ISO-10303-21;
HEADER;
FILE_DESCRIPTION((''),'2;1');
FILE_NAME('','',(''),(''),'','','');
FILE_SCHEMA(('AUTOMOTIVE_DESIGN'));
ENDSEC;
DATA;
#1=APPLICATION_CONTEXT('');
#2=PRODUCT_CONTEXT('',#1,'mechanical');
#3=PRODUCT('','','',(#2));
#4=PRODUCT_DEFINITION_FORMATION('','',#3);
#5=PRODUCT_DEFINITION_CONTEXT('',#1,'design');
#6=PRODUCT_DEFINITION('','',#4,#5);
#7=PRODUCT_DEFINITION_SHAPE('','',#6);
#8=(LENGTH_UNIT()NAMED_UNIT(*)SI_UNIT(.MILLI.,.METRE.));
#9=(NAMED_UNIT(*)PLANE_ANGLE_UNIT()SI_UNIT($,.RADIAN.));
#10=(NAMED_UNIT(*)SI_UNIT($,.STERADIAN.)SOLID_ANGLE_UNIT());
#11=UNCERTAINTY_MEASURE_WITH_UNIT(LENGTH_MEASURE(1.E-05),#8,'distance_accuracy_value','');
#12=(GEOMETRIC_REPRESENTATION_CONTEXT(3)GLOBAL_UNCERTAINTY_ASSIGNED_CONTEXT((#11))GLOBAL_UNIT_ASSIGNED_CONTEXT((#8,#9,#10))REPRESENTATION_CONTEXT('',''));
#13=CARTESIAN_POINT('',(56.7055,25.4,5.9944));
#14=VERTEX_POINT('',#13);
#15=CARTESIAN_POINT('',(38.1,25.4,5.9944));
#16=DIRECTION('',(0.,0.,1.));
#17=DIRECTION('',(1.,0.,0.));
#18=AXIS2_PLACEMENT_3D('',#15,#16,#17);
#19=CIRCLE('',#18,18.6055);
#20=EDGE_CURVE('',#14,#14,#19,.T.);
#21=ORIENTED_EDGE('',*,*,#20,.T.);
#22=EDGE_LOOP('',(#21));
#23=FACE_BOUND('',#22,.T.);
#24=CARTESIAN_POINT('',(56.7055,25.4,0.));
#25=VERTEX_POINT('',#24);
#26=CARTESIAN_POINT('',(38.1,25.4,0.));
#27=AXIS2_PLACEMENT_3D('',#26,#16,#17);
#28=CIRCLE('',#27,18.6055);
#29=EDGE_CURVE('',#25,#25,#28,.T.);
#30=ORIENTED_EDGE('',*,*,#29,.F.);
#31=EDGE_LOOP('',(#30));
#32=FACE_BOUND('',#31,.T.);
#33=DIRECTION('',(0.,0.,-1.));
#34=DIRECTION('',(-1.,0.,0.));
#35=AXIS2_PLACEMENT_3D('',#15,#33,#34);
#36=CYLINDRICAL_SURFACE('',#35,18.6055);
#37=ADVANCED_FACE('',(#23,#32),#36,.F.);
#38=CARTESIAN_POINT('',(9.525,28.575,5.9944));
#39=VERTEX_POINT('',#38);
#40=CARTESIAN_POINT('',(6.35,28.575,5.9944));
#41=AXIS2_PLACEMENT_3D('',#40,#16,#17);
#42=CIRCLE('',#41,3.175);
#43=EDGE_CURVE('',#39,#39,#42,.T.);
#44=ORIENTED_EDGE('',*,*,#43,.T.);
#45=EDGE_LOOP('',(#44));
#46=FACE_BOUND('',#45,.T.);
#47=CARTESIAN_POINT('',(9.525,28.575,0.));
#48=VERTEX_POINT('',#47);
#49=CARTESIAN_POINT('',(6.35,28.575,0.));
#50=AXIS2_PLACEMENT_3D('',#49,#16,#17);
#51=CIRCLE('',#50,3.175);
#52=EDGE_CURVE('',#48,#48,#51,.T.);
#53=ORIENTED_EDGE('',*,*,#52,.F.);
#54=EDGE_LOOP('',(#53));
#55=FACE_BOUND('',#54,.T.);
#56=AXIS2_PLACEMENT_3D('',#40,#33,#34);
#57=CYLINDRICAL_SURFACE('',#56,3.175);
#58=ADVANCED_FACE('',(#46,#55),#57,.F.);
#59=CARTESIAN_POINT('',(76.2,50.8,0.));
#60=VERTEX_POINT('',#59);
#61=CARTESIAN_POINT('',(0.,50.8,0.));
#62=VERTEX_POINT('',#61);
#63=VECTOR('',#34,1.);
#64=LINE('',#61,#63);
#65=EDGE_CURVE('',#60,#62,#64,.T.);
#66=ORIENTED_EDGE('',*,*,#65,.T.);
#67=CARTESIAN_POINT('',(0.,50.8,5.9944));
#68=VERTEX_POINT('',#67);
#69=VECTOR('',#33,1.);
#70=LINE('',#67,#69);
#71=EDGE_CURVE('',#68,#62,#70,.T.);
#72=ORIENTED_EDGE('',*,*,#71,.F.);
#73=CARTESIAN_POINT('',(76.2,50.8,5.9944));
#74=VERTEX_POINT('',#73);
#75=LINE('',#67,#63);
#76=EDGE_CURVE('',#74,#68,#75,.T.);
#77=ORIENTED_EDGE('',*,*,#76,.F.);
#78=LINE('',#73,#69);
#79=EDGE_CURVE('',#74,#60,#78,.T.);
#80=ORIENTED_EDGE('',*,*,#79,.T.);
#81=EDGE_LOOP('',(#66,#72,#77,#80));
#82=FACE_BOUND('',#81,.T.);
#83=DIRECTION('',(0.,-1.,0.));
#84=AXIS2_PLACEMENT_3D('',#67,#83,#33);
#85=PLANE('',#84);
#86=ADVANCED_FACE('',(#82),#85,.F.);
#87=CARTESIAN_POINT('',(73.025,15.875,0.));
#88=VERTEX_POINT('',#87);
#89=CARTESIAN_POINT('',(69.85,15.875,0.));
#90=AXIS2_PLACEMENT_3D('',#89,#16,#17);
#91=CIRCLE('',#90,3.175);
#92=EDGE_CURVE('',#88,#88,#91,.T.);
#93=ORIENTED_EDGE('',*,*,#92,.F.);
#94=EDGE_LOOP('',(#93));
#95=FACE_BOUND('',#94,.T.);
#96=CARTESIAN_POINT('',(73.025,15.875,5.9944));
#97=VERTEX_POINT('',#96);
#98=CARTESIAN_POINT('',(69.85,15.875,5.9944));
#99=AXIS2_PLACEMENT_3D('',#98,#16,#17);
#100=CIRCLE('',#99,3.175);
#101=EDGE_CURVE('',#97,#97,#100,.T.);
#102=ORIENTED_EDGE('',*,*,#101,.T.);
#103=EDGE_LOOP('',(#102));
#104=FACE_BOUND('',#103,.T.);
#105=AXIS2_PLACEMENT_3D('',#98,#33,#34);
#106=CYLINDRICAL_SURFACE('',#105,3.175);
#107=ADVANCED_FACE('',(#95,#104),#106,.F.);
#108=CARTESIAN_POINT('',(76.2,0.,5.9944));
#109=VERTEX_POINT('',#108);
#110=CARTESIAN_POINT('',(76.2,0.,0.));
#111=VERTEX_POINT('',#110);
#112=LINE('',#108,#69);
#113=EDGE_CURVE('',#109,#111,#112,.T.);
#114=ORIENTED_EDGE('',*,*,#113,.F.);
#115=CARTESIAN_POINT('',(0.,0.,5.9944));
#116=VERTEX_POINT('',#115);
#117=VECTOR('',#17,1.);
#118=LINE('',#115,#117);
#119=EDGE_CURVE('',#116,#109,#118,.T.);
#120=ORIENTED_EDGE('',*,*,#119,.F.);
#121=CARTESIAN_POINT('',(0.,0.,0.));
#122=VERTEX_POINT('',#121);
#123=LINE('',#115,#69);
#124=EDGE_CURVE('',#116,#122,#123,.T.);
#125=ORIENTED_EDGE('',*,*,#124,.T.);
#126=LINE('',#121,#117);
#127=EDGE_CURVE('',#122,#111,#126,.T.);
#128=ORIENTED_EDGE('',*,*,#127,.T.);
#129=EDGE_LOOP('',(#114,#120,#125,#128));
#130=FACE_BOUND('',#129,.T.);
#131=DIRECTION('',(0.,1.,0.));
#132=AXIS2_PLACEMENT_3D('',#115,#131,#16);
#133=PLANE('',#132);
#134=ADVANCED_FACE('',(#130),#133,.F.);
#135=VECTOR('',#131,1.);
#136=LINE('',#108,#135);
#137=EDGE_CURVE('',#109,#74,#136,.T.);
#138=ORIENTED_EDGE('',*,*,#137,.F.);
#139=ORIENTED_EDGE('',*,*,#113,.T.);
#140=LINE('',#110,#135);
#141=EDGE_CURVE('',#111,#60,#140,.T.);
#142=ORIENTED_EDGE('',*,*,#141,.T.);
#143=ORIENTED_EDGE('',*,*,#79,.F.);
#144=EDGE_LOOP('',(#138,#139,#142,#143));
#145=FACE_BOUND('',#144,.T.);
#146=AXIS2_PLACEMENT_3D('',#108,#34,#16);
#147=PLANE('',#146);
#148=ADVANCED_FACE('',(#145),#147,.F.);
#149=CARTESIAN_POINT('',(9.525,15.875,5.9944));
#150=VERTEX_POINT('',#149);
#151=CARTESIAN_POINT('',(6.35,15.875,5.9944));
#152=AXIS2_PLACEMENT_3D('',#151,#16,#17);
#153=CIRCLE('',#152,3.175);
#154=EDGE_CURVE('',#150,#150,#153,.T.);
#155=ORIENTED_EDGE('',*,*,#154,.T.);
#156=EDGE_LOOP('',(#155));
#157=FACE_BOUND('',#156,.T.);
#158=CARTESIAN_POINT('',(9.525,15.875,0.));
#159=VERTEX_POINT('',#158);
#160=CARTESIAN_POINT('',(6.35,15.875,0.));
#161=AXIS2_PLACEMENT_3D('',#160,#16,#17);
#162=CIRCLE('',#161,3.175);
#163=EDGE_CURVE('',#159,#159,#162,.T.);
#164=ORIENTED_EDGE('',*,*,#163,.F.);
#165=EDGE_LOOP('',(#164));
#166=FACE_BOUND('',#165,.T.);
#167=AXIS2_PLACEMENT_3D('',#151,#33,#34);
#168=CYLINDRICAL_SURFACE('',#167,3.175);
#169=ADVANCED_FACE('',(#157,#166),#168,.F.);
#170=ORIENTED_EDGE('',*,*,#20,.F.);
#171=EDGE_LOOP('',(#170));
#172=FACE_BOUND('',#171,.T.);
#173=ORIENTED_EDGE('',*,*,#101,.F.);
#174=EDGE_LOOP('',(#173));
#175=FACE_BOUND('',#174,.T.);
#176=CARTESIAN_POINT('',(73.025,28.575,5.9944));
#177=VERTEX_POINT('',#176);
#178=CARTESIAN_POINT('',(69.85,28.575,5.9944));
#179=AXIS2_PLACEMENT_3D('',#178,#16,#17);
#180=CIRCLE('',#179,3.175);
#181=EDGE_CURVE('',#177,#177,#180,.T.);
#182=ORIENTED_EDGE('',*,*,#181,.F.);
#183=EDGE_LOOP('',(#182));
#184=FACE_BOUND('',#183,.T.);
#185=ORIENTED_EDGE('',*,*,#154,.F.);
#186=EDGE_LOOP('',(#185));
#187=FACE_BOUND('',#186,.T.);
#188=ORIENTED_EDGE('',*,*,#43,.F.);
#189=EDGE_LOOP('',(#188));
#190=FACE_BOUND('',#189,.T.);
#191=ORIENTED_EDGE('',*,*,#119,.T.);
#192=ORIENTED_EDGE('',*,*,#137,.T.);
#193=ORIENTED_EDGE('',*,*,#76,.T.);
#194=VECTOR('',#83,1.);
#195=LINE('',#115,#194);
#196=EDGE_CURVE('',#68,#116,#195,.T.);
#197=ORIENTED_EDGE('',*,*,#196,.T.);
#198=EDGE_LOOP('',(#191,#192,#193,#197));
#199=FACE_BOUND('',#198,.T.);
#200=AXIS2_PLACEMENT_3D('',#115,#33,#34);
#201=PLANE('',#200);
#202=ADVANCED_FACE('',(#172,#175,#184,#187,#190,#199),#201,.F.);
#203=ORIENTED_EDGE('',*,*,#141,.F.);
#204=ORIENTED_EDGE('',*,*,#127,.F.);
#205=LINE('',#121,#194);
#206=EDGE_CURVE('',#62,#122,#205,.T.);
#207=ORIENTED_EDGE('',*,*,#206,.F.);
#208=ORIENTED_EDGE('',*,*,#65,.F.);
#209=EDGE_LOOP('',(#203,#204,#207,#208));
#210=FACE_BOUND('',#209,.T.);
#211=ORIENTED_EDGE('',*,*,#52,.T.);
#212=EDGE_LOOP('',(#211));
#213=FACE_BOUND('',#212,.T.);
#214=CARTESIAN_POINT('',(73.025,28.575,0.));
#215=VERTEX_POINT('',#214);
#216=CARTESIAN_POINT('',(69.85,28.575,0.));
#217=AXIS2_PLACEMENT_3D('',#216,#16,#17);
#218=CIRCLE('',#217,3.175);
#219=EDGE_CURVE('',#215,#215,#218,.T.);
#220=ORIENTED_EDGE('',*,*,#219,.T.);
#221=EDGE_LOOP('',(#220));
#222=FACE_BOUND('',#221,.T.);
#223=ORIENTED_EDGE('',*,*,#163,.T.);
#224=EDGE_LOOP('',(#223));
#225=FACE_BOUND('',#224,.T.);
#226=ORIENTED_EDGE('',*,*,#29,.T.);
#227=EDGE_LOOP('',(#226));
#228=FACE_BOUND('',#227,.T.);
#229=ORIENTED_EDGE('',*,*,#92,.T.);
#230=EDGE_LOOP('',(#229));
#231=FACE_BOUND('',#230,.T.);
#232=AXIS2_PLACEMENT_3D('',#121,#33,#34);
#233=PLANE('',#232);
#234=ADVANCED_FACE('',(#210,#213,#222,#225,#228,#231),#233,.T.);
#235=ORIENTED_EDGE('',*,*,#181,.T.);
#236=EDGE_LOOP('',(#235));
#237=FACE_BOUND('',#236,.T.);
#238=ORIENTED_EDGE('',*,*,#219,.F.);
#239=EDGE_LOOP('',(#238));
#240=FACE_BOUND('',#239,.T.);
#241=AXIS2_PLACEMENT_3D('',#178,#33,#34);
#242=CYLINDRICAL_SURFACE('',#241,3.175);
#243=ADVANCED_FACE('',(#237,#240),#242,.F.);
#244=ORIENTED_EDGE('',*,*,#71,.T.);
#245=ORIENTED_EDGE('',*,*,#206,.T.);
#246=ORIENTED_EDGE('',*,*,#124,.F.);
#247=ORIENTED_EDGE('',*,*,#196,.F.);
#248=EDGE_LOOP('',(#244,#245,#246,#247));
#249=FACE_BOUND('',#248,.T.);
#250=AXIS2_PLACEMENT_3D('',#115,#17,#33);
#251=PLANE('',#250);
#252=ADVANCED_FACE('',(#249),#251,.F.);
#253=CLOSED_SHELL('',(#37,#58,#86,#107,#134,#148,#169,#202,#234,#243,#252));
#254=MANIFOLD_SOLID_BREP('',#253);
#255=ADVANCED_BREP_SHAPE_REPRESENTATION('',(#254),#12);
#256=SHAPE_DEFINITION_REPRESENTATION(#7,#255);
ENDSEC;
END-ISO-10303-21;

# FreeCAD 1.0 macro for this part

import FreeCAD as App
import Part
import Sketcher

V = App.Vector
Q = App.Units.Quantity


def add_polygon(sketch, points):
    """Adds a closed chain of lines whose ends are joined by coincident constraints."""
    first, n = sketch.GeometryCount, len(points)
    for a, b in zip(points, points[1:] + points[:1]):
        sketch.addGeometry(Part.LineSegment(App.Vector(*a, 0), App.Vector(*b, 0)), False)
    for i in range(n):
        sketch.addConstraint(Sketcher.Constraint("Coincident", first + i, 2, first + (i + 1) % n, 1))

doc = App.newDocument("Part")
body = doc.addObject("PartDesign::Body", "Body")

sketch1 = body.newObject("Sketcher::SketchObject", "Sketch")
sketch1.AttachmentSupport = (doc.getObject("XY_Plane"), [""])
sketch1.MapMode = "FlatFace"
add_polygon(sketch1, [(0, 50.8), (0, 0), (76.2, 0), (76.2, 50.8)])
sketch1.addGeometry(Part.Circle(V(6.3, 15.9, 0), V(0, 0, 1), 3.2), False)
sketch1.addGeometry(Part.Circle(V(69.8, 15.9, 0), V(0, 0, 1), 3.2), False)
sketch1.addGeometry(Part.Circle(V(38.1, 25.4, 0), V(0, 0, 1), 18.6), False)
sketch1.addGeometry(Part.Circle(V(6.3, 28.6, 0), V(0, 0, 1), 3.2), False)
sketch1.addGeometry(Part.Circle(V(69.8, 28.6, 0), V(0, 0, 1), 3.2), False)
sketch1.addConstraint(Sketcher.Constraint("Vertical", 0))
sketch1.addConstraint(Sketcher.Constraint("Horizontal", 1))
sketch1.addConstraint(Sketcher.Constraint("Vertical", 2))
sketch1.addConstraint(Sketcher.Constraint("Horizontal", 3))
sketch1.addConstraint(Sketcher.Constraint("Coincident", 0, 2, -1, 1))
sketch1.addConstraint(Sketcher.Constraint("Equal", 4, 5))
sketch1.addConstraint(Sketcher.Constraint("Equal", 5, 7))
sketch1.addConstraint(Sketcher.Constraint("Equal", 7, 8))
sketch1.addConstraint(Sketcher.Constraint("Horizontal", 4, 3, 5, 3))
sketch1.addConstraint(Sketcher.Constraint("Horizontal", 7, 3, 8, 3))
sketch1.addConstraint(Sketcher.Constraint("Vertical", 4, 3, 7, 3))
sketch1.addConstraint(Sketcher.Constraint("Vertical", 5, 3, 8, 3))
sketch1.addConstraint(Sketcher.Constraint("Diameter", 4, Q("0.25 in")))
sketch1.addConstraint(Sketcher.Constraint("DistanceX", 1, 1, 1, 2, Q("3 in")))
sketch1.addConstraint(Sketcher.Constraint("DistanceY", 0, 2, 0, 1, Q("2 in")))
sketch1.addConstraint(Sketcher.Constraint("Diameter", 6, Q("1.465 in")))
sketch1.addConstraint(Sketcher.Constraint("DistanceY", -1, 1, 6, 3, Q("1 in")))
sketch1.addConstraint(Sketcher.Constraint("DistanceX", -1, 1, 6, 3, Q("1.5 in")))
sketch1.addConstraint(Sketcher.Constraint("DistanceX", 4, 3, 5, 3, Q("2.5 in")))
sketch1.addConstraint(Sketcher.Constraint("DistanceY", 4, 3, 7, 3, Q("0.5 in")))
sketch1.addConstraint(Sketcher.Constraint("DistanceX", -1, 1, 4, 3, Q("0.25 in")))
sketch1.addConstraint(Sketcher.Constraint("DistanceY", -1, 1, 4, 3, Q("0.625 in")))
pad1 = body.newObject("PartDesign::Pad", "Pad")
pad1.Profile = sketch1
pad1.Length = Q("0.236 in")

doc.recompute()
